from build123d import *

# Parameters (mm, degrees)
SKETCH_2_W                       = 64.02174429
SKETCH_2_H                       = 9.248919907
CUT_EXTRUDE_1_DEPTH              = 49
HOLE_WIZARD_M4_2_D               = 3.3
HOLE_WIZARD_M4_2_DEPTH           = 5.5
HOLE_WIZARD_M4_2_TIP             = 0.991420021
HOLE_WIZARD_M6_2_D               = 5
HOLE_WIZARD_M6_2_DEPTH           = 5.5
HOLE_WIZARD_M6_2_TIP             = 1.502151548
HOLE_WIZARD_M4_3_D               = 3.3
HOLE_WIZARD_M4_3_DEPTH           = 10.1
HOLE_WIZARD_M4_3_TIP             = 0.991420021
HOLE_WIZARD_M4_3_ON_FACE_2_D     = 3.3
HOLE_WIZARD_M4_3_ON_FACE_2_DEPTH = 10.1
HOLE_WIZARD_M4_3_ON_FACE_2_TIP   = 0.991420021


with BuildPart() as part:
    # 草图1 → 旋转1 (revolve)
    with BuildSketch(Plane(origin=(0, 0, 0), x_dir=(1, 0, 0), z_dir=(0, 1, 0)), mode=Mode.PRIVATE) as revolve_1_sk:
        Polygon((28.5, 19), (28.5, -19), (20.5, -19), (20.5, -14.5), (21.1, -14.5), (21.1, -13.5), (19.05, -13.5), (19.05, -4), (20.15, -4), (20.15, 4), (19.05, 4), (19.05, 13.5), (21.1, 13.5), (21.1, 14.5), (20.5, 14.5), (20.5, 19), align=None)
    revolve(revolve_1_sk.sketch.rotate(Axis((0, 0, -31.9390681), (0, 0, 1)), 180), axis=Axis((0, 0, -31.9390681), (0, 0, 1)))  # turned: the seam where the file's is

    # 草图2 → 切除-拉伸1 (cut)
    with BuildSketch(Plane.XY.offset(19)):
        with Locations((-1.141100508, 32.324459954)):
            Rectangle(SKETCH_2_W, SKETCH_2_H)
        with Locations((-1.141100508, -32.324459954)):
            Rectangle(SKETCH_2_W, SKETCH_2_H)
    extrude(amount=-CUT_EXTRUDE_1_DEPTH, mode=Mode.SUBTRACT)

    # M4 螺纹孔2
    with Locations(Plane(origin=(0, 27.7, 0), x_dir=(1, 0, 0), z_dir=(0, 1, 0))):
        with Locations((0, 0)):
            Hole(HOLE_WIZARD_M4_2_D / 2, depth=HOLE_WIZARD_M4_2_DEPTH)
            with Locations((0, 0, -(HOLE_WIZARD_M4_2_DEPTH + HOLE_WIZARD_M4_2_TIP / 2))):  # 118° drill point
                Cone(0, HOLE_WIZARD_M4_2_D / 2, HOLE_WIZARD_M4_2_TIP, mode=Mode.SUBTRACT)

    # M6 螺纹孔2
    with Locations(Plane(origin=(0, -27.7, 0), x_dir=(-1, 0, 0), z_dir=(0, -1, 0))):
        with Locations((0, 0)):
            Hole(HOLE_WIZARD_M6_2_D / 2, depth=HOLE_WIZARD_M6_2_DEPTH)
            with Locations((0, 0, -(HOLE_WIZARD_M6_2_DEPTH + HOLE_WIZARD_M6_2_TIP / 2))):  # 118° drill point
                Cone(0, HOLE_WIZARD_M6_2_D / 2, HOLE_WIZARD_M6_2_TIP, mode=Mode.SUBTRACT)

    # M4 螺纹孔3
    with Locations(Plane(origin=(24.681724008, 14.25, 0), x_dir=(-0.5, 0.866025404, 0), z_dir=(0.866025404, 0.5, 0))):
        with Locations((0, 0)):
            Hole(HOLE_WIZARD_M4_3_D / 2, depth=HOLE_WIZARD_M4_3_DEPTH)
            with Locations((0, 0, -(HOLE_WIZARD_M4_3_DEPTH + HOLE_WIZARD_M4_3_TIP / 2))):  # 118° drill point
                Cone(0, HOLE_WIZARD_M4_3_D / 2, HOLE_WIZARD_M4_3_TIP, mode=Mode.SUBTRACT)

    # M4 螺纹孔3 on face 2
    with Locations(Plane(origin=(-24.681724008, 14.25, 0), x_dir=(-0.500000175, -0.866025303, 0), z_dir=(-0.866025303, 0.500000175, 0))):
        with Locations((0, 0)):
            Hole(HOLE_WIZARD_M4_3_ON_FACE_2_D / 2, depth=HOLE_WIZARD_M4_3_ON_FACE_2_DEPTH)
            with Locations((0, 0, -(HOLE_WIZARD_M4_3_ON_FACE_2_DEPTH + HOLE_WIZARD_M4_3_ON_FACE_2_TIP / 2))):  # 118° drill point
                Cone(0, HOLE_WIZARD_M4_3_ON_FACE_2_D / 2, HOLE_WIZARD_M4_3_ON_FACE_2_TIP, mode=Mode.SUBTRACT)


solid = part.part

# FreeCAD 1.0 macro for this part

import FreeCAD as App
import Part
import Sketcher

V = App.Vector
Q = App.Units.Quantity


def add_polygon(sketch, points):
    """Adds a closed chain of lines whose ends are joined by coincident constraints."""
    first, n = sketch.GeometryCount, len(points)
    for a, b in zip(points, points[1:] + points[:1]):
        sketch.addGeometry(Part.LineSegment(App.Vector(*a, 0), App.Vector(*b, 0)), False)
    for i in range(n):
        sketch.addConstraint(Sketcher.Constraint("Coincident", first + i, 2, first + (i + 1) % n, 1))

doc = App.newDocument("Part")
body = doc.addObject("PartDesign::Body", "Body")

sketch1 = doc.addObject("Sketcher::SketchObject", "Sketch")
body.addObject(sketch1)
sketch1.AttachmentSupport = (doc.XZ_Plane, [""])
sketch1.MapMode = "FlatFace"
add_polygon(sketch1, [(28.5, 19), (28.5, -19), (20.5, -19), (20.5, -14.5), (21.1, -14.5), (21.1, -13.5), (19.1, -13.5), (19.1, -4), (20.1, -4), (20.1, 4), (19.1, 4), (19.1, 13.5), (21.1, 13.5), (21.1, 14.5), (20.5, 14.5), (20.5, 19)])
sketch1.addConstraint([
    Sketcher.Constraint("Vertical", 0),
    Sketcher.Constraint("Horizontal", 1),
    Sketcher.Constraint("Vertical", 2),
    Sketcher.Constraint("Horizontal", 3),
    Sketcher.Constraint("Vertical", 4),
    Sketcher.Constraint("Horizontal", 5),
    Sketcher.Constraint("Vertical", 6),
    Sketcher.Constraint("Horizontal", 7),
    Sketcher.Constraint("Vertical", 8),
    Sketcher.Constraint("Horizontal", 9),
    Sketcher.Constraint("Vertical", 10),
    Sketcher.Constraint("Horizontal", 11),
    Sketcher.Constraint("Vertical", 12),
    Sketcher.Constraint("Horizontal", 13),
    Sketcher.Constraint("Vertical", 14),
    Sketcher.Constraint("Horizontal", 15),
    Sketcher.Constraint("Symmetric", 6, 2, 9, 2, -1),
    Sketcher.Constraint("Symmetric", 4, 2, 11, 2, -1),
    Sketcher.Constraint("Symmetric", 2, 2, 13, 2, -1),
    Sketcher.Constraint("Equal", 15, 8),
    Sketcher.Constraint("Equal", 2, 14),
    Sketcher.Constraint("DistanceX", 1, 2, 1, 1, Q("8 mm")),
    Sketcher.Constraint("DistanceY", 0, 2, 0, 1, Q("38 mm")),
    Sketcher.Constraint("DistanceY", 4, 1, 4, 2, Q("1 mm")),
    Sketcher.Constraint("DistanceX", 3, 1, 3, 2, Q("0.6 mm")),
    Sketcher.Constraint("DistanceX", 7, 1, 7, 2, Q("1.1 mm")),
    Sketcher.Constraint("DistanceY", 2, 1, 2, 2, Q("4.5 mm")),
    Sketcher.Constraint("DistanceX", 5, 2, 5, 1, Q("2.05 mm")),
    Sketcher.Constraint("DistanceX", -1, 1, 0, 2, Q("28.5 mm")),
])
revolution = doc.addObject("PartDesign::Revolution", "Revolution")
body.addObject(revolution)
revolution.Profile = sketch1
revolution.ReferenceAxis = (sketch1, ["V_Axis"])
revolution.Angle = 360

sketch2 = doc.addObject("Sketcher::SketchObject", "Sketch001")
body.addObject(sketch2)
sketch2.AttachmentSupport = (doc.XY_Plane, [""])
sketch2.MapMode = "FlatFace"
sketch2.AttachmentOffset = App.Placement(V(0, 0, 19), App.Rotation())
add_polygon(sketch2, [(-33, 37), (-33, 28), (31, 28), (31, 37)])
add_polygon(sketch2, [(-33, -28), (-33, -37), (31, -37), (31, -28)])
sketch2.addConstraint([
    Sketcher.Constraint("Vertical", 0),
    Sketcher.Constraint("Horizontal", 1),
    Sketcher.Constraint("Vertical", 2),
    Sketcher.Constraint("Horizontal", 3),
    Sketcher.Constraint("Vertical", 4),
    Sketcher.Constraint("Horizontal", 5),
    Sketcher.Constraint("Vertical", 6),
    Sketcher.Constraint("Horizontal", 7),
    Sketcher.Constraint("Symmetric", 3, 2, 4, 2, -1),
    Sketcher.Constraint("Symmetric", 1, 2, 6, 2, -1),
    Sketcher.Constraint("DistanceY", -1, 1, 0, 2, Q("27.7 mm")),
    Sketcher.Constraint("DistanceY", 0, 2, 0, 1, Q("9.24892 mm")),
    Sketcher.Constraint("DistanceX", 1, 1, 1, 2, Q("64.021744 mm")),
    Sketcher.Constraint("DistanceX", -1, 1, 1, 2, Q("30.869772 mm")),
])
pocket1 = doc.addObject("PartDesign::Pocket", "Pocket")
body.addObject(pocket1)
pocket1.Profile = sketch2
pocket1.Length = 49

sketch3 = doc.addObject("Sketcher::SketchObject", "Sketch002")
body.addObject(sketch3)
sketch3.AttachmentSupport = (doc.XZ_Plane, [""])
sketch3.MapMode = "FlatFace"
sketch3.AttachmentOffset = App.Placement(V(0, 0, -27.7), App.Rotation())
sketch3.addGeometry(Part.Circle(V(0, 0, 0), V(0, 0, 1), 1.6), False)
sketch3.addConstraint([
    Sketcher.Constraint("Coincident", 0, 3, -1, 1),
    Sketcher.Constraint("Diameter", 0, Q("3.3 mm")),
])
doc.recompute()
hole = doc.addObject("PartDesign::Hole", "Hole")
body.addObject(hole)
hole.Profile = sketch3
hole.ThreadType = "None"
hole.Diameter = 3.3
hole.DepthType = "Dimension"
hole.Depth = 5.5
hole.DrillPoint = "Angled"
hole.DrillPointAngle = 118
hole.Reversed = True

sketch4 = doc.addObject("Sketcher::SketchObject", "Sketch003")
body.addObject(sketch4)
sketch4.AttachmentSupport = (doc.XZ_Plane, [""])
sketch4.MapMode = "FlatFace"
sketch4.AttachmentOffset = App.Placement(V(0, 0, 27.7), App.Rotation())
sketch4.addGeometry(Part.Circle(V(0, 0, 0), V(0, 0, 1), 2.5), False)
sketch4.addConstraint([
    Sketcher.Constraint("Coincident", 0, 3, -1, 1),
    Sketcher.Constraint("Diameter", 0, Q("5 mm")),
])
doc.recompute()
hole2 = doc.addObject("PartDesign::Hole", "Hole001")
body.addObject(hole2)
hole2.Profile = sketch4
hole2.ThreadType = "None"
hole2.Diameter = 5
hole2.DepthType = "Dimension"
hole2.Depth = 5.5
hole2.DrillPoint = "Angled"
hole2.DrillPointAngle = 118

sketch5 = doc.addObject("Sketcher::SketchObject", "Sketch004")
body.addObject(sketch5)
sketch5.Placement = App.Placement(V(24.681724, 14.25, 0), App.Rotation(V(-0.5, 0.866025404, 0), V(0, 0, 1), V(0.866025404, 0.5, 0), "ZXY"))
sketch5.addGeometry(Part.Circle(V(0, 0, 0), V(0, 0, 1), 1.6), False)
sketch5.addConstraint([
    Sketcher.Constraint("Coincident", 0, 3, -1, 1),
    Sketcher.Constraint("Diameter", 0, Q("3.3 mm")),
])
doc.recompute()
hole3 = doc.addObject("PartDesign::Hole", "Hole002")
body.addObject(hole3)
hole3.Profile = sketch5
hole3.ThreadType = "None"
hole3.Diameter = 3.3
hole3.DepthType = "Dimension"
hole3.Depth = 10.1
hole3.DrillPoint = "Angled"
hole3.DrillPointAngle = 118

sketch6 = doc.addObject("Sketcher::SketchObject", "Sketch005")
body.addObject(sketch6)
sketch6.Placement = App.Placement(V(-24.681721, 14.250005, 0), App.Rotation(V(-0.500000175, -0.866025303, 0), V(0, 0, 1), V(-0.866025303, 0.500000175, 0), "ZXY"))
sketch6.addGeometry(Part.Circle(V(0, 0, 0), V(0, 0, 1), 1.6), False)
sketch6.addConstraint([
    Sketcher.Constraint("Coincident", 0, 3, -1, 1),
    Sketcher.Constraint("Diameter", 0, Q("3.3 mm")),
])
doc.recompute()
hole4 = doc.addObject("PartDesign::Hole", "Hole003")
body.addObject(hole4)
hole4.Profile = sketch6
hole4.ThreadType = "None"
hole4.Diameter = 3.3
hole4.DepthType = "Dimension"
hole4.Depth = 10.1
hole4.DrillPoint = "Angled"
hole4.DrillPointAngle = 118

doc.recompute()
